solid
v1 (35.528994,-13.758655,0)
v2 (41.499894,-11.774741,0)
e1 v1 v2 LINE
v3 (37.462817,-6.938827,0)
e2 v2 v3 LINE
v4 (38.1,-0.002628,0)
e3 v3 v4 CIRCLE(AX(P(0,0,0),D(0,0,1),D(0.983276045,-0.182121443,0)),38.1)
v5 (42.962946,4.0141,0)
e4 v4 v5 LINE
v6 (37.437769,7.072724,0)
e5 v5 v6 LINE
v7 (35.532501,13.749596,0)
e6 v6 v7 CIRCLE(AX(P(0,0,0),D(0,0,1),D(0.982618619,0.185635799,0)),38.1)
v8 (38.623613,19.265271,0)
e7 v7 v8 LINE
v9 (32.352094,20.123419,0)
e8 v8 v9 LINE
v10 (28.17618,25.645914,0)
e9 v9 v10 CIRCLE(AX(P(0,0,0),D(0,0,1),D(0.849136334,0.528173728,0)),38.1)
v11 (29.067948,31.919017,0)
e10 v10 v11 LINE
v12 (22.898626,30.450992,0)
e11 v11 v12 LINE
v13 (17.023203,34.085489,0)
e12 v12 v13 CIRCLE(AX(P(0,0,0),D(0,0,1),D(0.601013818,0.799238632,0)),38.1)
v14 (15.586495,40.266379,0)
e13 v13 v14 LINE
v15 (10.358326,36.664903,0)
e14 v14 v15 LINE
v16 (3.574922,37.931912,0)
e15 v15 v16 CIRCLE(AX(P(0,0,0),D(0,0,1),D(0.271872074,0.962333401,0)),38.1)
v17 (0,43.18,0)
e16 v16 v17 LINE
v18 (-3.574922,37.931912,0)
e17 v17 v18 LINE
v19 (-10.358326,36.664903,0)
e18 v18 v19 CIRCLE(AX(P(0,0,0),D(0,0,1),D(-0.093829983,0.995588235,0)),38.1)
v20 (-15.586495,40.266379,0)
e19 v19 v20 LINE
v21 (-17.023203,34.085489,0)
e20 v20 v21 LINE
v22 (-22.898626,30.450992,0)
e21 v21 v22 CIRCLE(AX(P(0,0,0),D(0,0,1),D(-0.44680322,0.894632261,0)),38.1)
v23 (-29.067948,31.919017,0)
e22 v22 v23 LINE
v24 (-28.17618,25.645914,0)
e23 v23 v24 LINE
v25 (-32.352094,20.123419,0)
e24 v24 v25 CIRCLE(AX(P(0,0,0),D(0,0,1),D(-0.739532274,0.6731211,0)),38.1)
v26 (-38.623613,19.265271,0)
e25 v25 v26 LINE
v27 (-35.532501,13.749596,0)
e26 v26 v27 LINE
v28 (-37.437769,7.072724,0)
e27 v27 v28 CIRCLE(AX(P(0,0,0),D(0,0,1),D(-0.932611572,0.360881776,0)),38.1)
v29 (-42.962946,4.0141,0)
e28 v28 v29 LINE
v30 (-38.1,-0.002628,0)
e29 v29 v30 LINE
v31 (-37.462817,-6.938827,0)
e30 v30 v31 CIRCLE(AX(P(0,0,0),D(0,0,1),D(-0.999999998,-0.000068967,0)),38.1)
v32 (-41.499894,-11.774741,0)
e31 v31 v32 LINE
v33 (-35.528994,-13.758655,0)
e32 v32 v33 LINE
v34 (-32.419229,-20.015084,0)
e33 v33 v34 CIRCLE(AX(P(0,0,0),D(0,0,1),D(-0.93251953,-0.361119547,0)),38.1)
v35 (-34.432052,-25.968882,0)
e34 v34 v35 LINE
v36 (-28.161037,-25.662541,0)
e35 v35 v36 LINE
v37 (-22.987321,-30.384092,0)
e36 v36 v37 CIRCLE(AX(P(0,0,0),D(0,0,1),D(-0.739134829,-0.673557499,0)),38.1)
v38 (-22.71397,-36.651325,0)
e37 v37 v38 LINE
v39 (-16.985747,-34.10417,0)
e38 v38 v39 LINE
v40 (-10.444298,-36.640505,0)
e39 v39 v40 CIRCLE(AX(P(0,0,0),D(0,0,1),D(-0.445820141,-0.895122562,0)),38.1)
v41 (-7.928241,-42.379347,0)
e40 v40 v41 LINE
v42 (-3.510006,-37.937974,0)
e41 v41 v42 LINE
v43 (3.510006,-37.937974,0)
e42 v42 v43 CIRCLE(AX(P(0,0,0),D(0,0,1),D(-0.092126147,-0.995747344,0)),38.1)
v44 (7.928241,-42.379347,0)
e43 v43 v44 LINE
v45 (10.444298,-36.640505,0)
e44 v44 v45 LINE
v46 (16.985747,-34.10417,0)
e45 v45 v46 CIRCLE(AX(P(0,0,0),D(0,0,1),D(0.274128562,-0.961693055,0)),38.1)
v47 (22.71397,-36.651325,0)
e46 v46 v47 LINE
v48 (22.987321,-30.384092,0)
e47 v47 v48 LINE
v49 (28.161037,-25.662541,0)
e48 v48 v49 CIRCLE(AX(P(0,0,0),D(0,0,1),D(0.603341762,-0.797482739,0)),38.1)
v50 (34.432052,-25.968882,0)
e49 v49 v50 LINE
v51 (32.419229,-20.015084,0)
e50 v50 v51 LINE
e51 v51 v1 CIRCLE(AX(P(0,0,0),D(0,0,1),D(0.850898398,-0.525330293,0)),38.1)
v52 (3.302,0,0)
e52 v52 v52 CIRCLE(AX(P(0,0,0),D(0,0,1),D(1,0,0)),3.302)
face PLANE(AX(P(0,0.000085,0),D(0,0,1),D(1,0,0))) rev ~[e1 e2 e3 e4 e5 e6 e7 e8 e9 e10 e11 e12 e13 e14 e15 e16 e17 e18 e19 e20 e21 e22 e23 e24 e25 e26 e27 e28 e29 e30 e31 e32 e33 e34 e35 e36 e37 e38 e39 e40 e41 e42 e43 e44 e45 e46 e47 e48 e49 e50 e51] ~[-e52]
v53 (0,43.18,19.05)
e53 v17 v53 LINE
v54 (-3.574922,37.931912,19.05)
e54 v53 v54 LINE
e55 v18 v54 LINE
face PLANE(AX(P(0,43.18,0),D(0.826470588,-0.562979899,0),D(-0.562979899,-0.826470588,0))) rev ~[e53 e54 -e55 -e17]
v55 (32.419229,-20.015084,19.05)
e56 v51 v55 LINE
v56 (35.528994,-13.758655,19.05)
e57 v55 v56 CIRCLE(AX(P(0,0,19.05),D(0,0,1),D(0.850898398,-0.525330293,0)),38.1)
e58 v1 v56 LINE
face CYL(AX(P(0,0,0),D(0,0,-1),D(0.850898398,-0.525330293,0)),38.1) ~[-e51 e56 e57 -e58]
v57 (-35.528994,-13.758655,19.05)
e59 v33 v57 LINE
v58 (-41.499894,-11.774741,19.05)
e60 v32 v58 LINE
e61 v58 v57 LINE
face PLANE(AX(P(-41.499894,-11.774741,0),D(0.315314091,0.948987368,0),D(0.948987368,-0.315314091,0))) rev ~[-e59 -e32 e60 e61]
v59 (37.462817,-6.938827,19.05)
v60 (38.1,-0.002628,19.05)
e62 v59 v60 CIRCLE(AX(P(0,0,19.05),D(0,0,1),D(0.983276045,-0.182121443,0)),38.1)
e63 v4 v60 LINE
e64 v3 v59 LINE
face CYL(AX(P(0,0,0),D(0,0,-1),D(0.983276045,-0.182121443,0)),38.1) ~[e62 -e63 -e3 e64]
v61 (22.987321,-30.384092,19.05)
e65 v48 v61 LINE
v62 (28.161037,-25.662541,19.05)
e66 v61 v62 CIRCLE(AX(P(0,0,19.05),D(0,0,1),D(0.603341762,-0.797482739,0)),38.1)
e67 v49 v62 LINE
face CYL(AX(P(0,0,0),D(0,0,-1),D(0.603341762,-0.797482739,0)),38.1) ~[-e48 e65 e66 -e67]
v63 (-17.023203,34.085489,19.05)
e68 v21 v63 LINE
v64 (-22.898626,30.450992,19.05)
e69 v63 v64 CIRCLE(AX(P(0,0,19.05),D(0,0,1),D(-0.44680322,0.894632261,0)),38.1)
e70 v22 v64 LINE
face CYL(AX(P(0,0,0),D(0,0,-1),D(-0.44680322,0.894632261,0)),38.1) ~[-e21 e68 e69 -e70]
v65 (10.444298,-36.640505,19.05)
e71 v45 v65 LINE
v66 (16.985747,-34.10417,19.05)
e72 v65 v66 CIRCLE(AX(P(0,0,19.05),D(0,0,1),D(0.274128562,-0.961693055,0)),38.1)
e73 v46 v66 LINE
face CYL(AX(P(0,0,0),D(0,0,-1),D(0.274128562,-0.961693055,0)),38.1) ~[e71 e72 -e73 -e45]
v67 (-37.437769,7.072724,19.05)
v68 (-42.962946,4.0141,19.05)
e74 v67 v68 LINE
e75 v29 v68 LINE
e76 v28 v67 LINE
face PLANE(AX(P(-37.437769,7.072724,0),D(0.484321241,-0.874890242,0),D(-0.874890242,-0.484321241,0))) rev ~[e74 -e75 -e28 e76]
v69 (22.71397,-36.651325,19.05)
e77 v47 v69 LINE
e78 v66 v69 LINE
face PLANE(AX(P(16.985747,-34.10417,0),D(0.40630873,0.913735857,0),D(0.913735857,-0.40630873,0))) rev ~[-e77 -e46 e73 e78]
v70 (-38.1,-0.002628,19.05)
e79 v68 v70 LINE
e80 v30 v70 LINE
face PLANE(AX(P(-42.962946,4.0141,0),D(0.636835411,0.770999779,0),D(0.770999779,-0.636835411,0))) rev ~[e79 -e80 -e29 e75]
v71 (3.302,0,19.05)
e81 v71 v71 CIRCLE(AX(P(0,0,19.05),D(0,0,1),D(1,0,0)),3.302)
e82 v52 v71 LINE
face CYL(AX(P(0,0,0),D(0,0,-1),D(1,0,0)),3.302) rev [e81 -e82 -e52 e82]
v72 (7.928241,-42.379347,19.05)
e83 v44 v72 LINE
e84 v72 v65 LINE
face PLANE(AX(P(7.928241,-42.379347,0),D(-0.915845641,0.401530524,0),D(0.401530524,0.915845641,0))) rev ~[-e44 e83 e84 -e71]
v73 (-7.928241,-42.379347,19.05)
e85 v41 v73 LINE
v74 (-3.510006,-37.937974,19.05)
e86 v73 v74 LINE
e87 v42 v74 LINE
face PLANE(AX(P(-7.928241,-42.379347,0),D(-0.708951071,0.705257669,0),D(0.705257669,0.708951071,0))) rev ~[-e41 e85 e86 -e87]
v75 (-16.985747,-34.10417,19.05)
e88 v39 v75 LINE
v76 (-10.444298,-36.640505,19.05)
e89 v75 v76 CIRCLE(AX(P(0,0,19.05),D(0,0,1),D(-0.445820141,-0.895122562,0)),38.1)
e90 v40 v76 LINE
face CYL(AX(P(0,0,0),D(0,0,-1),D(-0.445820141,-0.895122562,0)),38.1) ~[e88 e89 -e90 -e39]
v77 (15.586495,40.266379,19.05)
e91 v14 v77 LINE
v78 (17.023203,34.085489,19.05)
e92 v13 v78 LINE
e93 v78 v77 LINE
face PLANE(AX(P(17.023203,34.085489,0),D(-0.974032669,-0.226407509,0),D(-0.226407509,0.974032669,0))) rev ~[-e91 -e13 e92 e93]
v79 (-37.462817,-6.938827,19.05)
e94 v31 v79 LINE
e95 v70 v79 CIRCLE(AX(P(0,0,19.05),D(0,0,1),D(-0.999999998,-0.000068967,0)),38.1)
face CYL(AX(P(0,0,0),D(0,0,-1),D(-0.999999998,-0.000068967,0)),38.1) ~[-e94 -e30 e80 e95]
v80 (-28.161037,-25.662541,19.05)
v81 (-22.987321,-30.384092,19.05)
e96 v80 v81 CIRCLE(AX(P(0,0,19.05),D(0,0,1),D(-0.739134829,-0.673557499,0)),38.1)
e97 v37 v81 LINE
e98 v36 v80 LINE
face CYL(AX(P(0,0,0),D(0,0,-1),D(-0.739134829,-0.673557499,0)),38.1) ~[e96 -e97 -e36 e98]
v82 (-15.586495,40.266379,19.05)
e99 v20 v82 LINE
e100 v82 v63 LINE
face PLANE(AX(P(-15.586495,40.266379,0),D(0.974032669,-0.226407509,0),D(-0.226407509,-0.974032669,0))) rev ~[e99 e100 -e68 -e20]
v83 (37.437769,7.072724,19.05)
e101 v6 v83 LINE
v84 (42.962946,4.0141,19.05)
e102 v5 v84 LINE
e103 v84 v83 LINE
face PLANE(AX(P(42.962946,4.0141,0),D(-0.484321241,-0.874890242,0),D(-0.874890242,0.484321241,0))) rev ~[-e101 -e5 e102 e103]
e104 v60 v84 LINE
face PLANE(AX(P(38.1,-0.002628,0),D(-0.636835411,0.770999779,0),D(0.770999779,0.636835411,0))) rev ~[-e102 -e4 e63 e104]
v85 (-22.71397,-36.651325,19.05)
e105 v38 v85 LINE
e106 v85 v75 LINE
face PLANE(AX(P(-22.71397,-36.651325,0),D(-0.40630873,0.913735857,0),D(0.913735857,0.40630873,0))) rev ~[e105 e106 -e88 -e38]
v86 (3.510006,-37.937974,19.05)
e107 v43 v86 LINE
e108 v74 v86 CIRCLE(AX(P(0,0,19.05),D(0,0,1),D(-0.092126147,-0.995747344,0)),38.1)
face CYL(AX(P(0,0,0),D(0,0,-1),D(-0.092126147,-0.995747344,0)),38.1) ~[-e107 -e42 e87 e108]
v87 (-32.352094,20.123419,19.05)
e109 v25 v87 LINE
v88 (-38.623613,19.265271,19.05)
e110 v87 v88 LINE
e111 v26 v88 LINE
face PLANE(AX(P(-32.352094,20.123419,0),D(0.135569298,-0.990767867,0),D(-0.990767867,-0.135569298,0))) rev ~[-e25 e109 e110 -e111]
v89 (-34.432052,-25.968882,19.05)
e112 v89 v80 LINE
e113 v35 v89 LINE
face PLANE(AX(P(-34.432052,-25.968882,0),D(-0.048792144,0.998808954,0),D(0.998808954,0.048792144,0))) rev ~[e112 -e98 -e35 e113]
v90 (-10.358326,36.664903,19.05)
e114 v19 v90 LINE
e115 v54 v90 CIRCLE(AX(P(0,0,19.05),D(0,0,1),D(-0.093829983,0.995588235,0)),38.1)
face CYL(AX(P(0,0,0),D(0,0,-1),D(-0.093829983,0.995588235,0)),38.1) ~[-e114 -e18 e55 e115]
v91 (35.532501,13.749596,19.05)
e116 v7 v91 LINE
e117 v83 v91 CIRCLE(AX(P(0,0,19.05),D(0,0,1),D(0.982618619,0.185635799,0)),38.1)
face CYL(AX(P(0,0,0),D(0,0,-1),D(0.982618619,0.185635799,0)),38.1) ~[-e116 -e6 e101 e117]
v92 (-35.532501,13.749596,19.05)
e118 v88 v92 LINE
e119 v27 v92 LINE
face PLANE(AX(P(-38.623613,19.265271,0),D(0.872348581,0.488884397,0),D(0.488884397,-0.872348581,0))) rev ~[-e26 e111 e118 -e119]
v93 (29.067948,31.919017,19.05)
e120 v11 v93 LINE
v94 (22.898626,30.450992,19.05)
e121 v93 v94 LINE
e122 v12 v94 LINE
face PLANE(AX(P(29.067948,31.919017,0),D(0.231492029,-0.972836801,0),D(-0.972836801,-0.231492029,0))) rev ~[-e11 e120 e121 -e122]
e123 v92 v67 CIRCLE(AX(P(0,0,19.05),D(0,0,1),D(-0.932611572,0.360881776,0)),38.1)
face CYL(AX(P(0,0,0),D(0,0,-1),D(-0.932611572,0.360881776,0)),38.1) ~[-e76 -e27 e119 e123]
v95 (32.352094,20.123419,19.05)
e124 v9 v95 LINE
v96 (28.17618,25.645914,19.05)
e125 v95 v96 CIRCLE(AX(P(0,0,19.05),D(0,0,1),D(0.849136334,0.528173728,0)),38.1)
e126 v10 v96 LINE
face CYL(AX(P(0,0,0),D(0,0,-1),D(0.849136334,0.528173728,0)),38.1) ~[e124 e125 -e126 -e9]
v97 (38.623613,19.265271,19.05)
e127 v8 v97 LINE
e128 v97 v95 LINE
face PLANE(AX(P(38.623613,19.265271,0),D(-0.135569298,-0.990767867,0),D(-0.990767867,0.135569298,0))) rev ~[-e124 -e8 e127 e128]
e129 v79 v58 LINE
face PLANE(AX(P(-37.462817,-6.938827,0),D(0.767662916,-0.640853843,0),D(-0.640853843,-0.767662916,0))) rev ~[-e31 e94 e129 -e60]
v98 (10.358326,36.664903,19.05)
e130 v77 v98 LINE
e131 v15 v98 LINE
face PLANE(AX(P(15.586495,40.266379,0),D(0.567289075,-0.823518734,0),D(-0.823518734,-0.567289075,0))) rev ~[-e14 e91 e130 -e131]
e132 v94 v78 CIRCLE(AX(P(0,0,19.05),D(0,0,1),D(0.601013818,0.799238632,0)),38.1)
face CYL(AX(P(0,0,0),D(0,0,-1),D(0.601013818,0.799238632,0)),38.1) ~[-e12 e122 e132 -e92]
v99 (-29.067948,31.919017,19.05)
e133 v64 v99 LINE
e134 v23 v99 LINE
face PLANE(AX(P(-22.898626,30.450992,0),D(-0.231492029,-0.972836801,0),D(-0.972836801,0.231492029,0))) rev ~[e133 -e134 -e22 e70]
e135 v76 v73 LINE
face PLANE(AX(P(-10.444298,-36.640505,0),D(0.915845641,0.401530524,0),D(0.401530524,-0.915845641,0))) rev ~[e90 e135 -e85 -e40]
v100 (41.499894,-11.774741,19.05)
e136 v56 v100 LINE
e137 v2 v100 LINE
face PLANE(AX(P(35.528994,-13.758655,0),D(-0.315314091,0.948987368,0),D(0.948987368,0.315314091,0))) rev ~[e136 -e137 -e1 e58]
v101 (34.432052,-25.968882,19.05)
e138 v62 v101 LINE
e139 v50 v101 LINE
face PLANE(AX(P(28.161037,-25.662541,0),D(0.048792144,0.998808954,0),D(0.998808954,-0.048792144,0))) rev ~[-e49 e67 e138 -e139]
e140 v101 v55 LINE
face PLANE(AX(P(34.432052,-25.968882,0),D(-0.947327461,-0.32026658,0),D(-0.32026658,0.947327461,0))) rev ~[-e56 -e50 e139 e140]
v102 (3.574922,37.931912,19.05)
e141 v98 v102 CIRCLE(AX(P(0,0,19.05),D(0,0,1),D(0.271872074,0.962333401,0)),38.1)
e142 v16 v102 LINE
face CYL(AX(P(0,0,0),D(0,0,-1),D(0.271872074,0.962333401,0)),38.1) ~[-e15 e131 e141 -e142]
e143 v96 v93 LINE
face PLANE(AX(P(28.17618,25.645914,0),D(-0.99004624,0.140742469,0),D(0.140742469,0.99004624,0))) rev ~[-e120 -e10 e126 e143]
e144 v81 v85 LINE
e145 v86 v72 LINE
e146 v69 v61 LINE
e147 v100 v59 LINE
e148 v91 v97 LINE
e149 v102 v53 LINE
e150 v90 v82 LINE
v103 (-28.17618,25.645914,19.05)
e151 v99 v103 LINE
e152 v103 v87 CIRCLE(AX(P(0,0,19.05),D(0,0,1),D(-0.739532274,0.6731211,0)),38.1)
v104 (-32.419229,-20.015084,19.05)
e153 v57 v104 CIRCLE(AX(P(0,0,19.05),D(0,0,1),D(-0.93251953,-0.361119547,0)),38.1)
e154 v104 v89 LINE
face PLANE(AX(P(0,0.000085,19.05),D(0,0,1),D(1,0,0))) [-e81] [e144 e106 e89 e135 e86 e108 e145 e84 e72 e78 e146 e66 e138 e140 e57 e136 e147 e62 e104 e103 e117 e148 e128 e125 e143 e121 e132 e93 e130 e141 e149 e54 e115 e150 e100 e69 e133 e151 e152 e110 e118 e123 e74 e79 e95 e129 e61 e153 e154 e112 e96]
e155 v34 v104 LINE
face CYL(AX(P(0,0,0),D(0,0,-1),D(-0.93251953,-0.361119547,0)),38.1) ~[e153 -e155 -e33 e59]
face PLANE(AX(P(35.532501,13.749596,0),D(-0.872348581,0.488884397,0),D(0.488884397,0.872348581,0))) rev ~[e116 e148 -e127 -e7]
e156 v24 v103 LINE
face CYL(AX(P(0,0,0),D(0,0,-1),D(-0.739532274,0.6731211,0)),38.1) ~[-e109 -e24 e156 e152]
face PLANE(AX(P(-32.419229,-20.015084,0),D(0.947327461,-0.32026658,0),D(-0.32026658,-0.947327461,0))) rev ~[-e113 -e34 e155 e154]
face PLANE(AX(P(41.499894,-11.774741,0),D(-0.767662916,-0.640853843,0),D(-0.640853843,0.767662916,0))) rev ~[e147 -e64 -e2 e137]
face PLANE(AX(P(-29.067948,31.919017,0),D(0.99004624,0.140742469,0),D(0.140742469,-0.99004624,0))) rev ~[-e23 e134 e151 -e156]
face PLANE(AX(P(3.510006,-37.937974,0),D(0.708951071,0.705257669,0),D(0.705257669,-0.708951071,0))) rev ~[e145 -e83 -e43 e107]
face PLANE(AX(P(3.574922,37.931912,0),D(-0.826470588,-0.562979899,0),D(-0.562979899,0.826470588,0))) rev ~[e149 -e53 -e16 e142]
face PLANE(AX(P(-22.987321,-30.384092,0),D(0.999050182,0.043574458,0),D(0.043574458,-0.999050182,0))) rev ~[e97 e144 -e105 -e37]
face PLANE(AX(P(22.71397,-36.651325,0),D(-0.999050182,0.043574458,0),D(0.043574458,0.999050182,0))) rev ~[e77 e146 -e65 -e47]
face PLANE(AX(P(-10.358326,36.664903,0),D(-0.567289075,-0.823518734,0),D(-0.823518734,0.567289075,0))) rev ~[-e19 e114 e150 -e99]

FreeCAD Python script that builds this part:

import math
import FreeCAD as App
import Part
import Sketcher
Q = App.Units.Quantity

doc = App.newDocument("Part")
body = doc.addObject("PartDesign::Body", "Body")

sketch1 = body.newObject("Sketcher::SketchObject", "Sketch")
sketch1.AttachmentSupport = (doc.getObject("XY_Plane"), [""])
sketch1.MapMode = "FlatFace"
sketch1.addGeometry([
    Part.ArcOfCircle(Part.Circle(App.Vector(0, 0, 0), App.Vector(0, 0, 1), 38.1), math.radians(74.224303), math.radians(84.616018)),
    Part.LineSegment(App.Vector(3.574922, 37.931912, 0), App.Vector(0, 43.18, 0)),
    Part.LineSegment(App.Vector(0, 43.18, 0), App.Vector(-3.574922, 37.931912, 0)),
    Part.ArcOfCircle(Part.Circle(App.Vector(0, 0, 0), App.Vector(0, 0, 1), 38.1), math.radians(95.383982), math.radians(105.775697)),
    Part.LineSegment(App.Vector(-10.358326, 36.664903, 0), App.Vector(-15.586495, 40.266379, 0)),
    Part.LineSegment(App.Vector(-15.586495, 40.266379, 0), App.Vector(-17.023203, 34.085489, 0)),
    Part.ArcOfCircle(Part.Circle(App.Vector(0, 0, 0), App.Vector(0, 0, 1), 38.1), math.radians(116.538766), math.radians(126.942542)),
    Part.LineSegment(App.Vector(-22.898626, 30.450992, 0), App.Vector(-29.067948, 31.919017, 0)),
    Part.LineSegment(App.Vector(-29.067948, 31.919017, 0), App.Vector(-28.17618, 25.645914, 0)),
    Part.ArcOfCircle(Part.Circle(App.Vector(0, 0, 0), App.Vector(0, 0, 1), 38.1), math.radians(137.691588), math.radians(148.117856)),
    Part.LineSegment(App.Vector(-32.352094, 20.123419, 0), App.Vector(-38.623613, 19.265271, 0)),
    Part.LineSegment(App.Vector(-38.623613, 19.265271, 0), App.Vector(-35.532501, 13.749596, 0)),
    Part.ArcOfCircle(Part.Circle(App.Vector(0, 0, 0), App.Vector(0, 0, 1), 38.1), math.radians(158.845641), math.radians(169.301797)),
    Part.LineSegment(App.Vector(-37.437769, 7.072724, 0), App.Vector(-42.962946, 4.0141, 0)),
    Part.LineSegment(App.Vector(-42.962946, 4.0141, 0), App.Vector(-38.1, -0.002628, 0)),
    Part.ArcOfCircle(Part.Circle(App.Vector(0, 0, 0), App.Vector(0, 0, 1), 38.1), math.radians(-179.996048), math.radians(-169.506648)),
    Part.LineSegment(App.Vector(-37.462817, -6.938827, 0), App.Vector(-41.499894, -11.774741, 0)),
    Part.LineSegment(App.Vector(-41.499894, -11.774741, 0), App.Vector(-35.528994, -13.758655, 0)),
    Part.ArcOfCircle(Part.Circle(App.Vector(0, 0, 0), App.Vector(0, 0, 1), 38.1), math.radians(-158.831033), math.radians(-148.309519)),
    Part.LineSegment(App.Vector(-32.419229, -20.015084, 0), App.Vector(-34.432052, -25.968882, 0)),
    Part.LineSegment(App.Vector(-34.432052, -25.968882, 0), App.Vector(-28.161037, -25.662541, 0)),
    Part.ArcOfCircle(Part.Circle(App.Vector(0, 0, 0), App.Vector(0, 0, 1), 38.1), math.radians(-137.657768), math.radians(-127.10961)),
    Part.LineSegment(App.Vector(-22.987321, -30.384092, 0), App.Vector(-22.71397, -36.651325, 0)),
    Part.LineSegment(App.Vector(-22.71397, -36.651325, 0), App.Vector(-16.985747, -34.10417, 0)),
    Part.ArcOfCircle(Part.Circle(App.Vector(0, 0, 0), App.Vector(0, 0, 1), 38.1), math.radians(-116.475823), math.radians(-105.910089)),
    Part.LineSegment(App.Vector(-10.444298, -36.640505, 0), App.Vector(-7.928241, -42.379347, 0)),
    Part.LineSegment(App.Vector(-7.928241, -42.379347, 0), App.Vector(-3.510006, -37.937974, 0)),
    Part.ArcOfCircle(Part.Circle(App.Vector(0, 0, 0), App.Vector(0, 0, 1), 38.1), math.radians(-95.285935), math.radians(-84.714065)),
    Part.LineSegment(App.Vector(3.510006, -37.937974, 0), App.Vector(7.928241, -42.379347, 0)),
    Part.LineSegment(App.Vector(7.928241, -42.379347, 0), App.Vector(10.444298, -36.640505, 0)),
    Part.ArcOfCircle(Part.Circle(App.Vector(0, 0, 0), App.Vector(0, 0, 1), 38.1), math.radians(-74.089911), math.radians(-63.524177)),
    Part.LineSegment(App.Vector(16.985747, -34.10417, 0), App.Vector(22.71397, -36.651325, 0)),
    Part.LineSegment(App.Vector(22.71397, -36.651325, 0), App.Vector(22.987321, -30.384092, 0)),
    Part.ArcOfCircle(Part.Circle(App.Vector(0, 0, 0), App.Vector(0, 0, 1), 38.1), math.radians(-52.89039), math.radians(-42.342232)),
    Part.LineSegment(App.Vector(28.161037, -25.662541, 0), App.Vector(34.432052, -25.968882, 0)),
    Part.LineSegment(App.Vector(34.432052, -25.968882, 0), App.Vector(32.419229, -20.015084, 0)),
    Part.ArcOfCircle(Part.Circle(App.Vector(0, 0, 0), App.Vector(0, 0, 1), 38.1), math.radians(-31.690481), math.radians(-21.168967)),
    Part.LineSegment(App.Vector(35.528994, -13.758655, 0), App.Vector(41.499894, -11.774741, 0)),
    Part.LineSegment(App.Vector(41.499894, -11.774741, 0), App.Vector(37.462817, -6.938827, 0)),
    Part.ArcOfCircle(Part.Circle(App.Vector(0, 0, 0), App.Vector(0, 0, 1), 38.1), math.radians(-10.493352), math.radians(-0.003952)),
    Part.LineSegment(App.Vector(38.1, -0.002628, 0), App.Vector(42.962946, 4.0141, 0)),
    Part.LineSegment(App.Vector(42.962946, 4.0141, 0), App.Vector(37.437769, 7.072724, 0)),
    Part.ArcOfCircle(Part.Circle(App.Vector(0, 0, 0), App.Vector(0, 0, 1), 38.1), math.radians(10.698203), math.radians(21.154359)),
    Part.LineSegment(App.Vector(35.532501, 13.749596, 0), App.Vector(38.623613, 19.265271, 0)),
    Part.LineSegment(App.Vector(38.623613, 19.265271, 0), App.Vector(32.352094, 20.123419, 0)),
    Part.ArcOfCircle(Part.Circle(App.Vector(0, 0, 0), App.Vector(0, 0, 1), 38.1), math.radians(31.882144), math.radians(42.308412)),
    Part.LineSegment(App.Vector(28.17618, 25.645914, 0), App.Vector(29.067948, 31.919017, 0)),
    Part.LineSegment(App.Vector(29.067948, 31.919017, 0), App.Vector(22.898626, 30.450992, 0)),
    Part.ArcOfCircle(Part.Circle(App.Vector(0, 0, 0), App.Vector(0, 0, 1), 38.1), math.radians(53.057458), math.radians(63.461234)),
    Part.LineSegment(App.Vector(17.023203, 34.085489, 0), App.Vector(15.586495, 40.266379, 0)),
    Part.LineSegment(App.Vector(15.586495, 40.266379, 0), App.Vector(10.358326, 36.664903, 0)),
    Part.Circle(App.Vector(0, 0, 0), App.Vector(0, 0, 1), 3.302),
], False)
sketch1.addConstraint([
    Sketcher.Constraint("Coincident", 0, 2, 1, 1),
    Sketcher.Constraint("Coincident", 1, 2, 2, 1),
    Sketcher.Constraint("Coincident", 2, 2, 3, 1),
    Sketcher.Constraint("Coincident", 3, 2, 4, 1),
    Sketcher.Constraint("Coincident", 4, 2, 5, 1),
    Sketcher.Constraint("Coincident", 5, 2, 6, 1),
    Sketcher.Constraint("Coincident", 6, 2, 7, 1),
    Sketcher.Constraint("Coincident", 7, 2, 8, 1),
    Sketcher.Constraint("Coincident", 8, 2, 9, 1),
    Sketcher.Constraint("Coincident", 9, 2, 10, 1),
    Sketcher.Constraint("Coincident", 10, 2, 11, 1),
    Sketcher.Constraint("Coincident", 11, 2, 12, 1),
    Sketcher.Constraint("Coincident", 12, 2, 13, 1),
    Sketcher.Constraint("Coincident", 13, 2, 14, 1),
    Sketcher.Constraint("Coincident", 14, 2, 15, 1),
    Sketcher.Constraint("Coincident", 15, 2, 16, 1),
    Sketcher.Constraint("Coincident", 16, 2, 17, 1),
    Sketcher.Constraint("Coincident", 17, 2, 18, 1),
    Sketcher.Constraint("Coincident", 18, 2, 19, 1),
    Sketcher.Constraint("Coincident", 19, 2, 20, 1),
    Sketcher.Constraint("Coincident", 20, 2, 21, 1),
    Sketcher.Constraint("Coincident", 21, 2, 22, 1),
    Sketcher.Constraint("Coincident", 22, 2, 23, 1),
    Sketcher.Constraint("Coincident", 23, 2, 24, 1),
    Sketcher.Constraint("Coincident", 24, 2, 25, 1),
    Sketcher.Constraint("Coincident", 25, 2, 26, 1),
    Sketcher.Constraint("Coincident", 26, 2, 27, 1),
    Sketcher.Constraint("Coincident", 27, 2, 28, 1),
    Sketcher.Constraint("Coincident", 28, 2, 29, 1),
    Sketcher.Constraint("Coincident", 29, 2, 30, 1),
    Sketcher.Constraint("Coincident", 30, 2, 31, 1),
    Sketcher.Constraint("Coincident", 31, 2, 32, 1),
    Sketcher.Constraint("Coincident", 32, 2, 33, 1),
    Sketcher.Constraint("Coincident", 33, 2, 34, 1),
    Sketcher.Constraint("Coincident", 34, 2, 35, 1),
    Sketcher.Constraint("Coincident", 35, 2, 36, 1),
    Sketcher.Constraint("Coincident", 36, 2, 37, 1),
    Sketcher.Constraint("Coincident", 37, 2, 38, 1),
    Sketcher.Constraint("Coincident", 38, 2, 39, 1),
    Sketcher.Constraint("Coincident", 39, 2, 40, 1),
    Sketcher.Constraint("Coincident", 40, 2, 41, 1),
    Sketcher.Constraint("Coincident", 41, 2, 42, 1),
    Sketcher.Constraint("Coincident", 42, 2, 43, 1),
    Sketcher.Constraint("Coincident", 43, 2, 44, 1),
    Sketcher.Constraint("Coincident", 44, 2, 45, 1),
    Sketcher.Constraint("Coincident", 45, 2, 46, 1),
    Sketcher.Constraint("Coincident", 46, 2, 47, 1),
    Sketcher.Constraint("Coincident", 47, 2, 48, 1),
    Sketcher.Constraint("Coincident", 48, 2, 49, 1),
    Sketcher.Constraint("Coincident", 49, 2, 50, 1),
    Sketcher.Constraint("Coincident", 50, 2, 0, 1),
    Sketcher.Constraint("Coincident", 0, 3, -1, 1),
    Sketcher.Constraint("Coincident", 3, 3, -1, 1),
    Sketcher.Constraint("Coincident", 6, 3, -1, 1),
    Sketcher.Constraint("Coincident", 9, 3, -1, 1),
    Sketcher.Constraint("Coincident", 12, 3, -1, 1),
    Sketcher.Constraint("Coincident", 15, 3, -1, 1),
    Sketcher.Constraint("Coincident", 18, 3, -1, 1),
    Sketcher.Constraint("Coincident", 21, 3, -1, 1),
    Sketcher.Constraint("Coincident", 24, 3, -1, 1),
    Sketcher.Constraint("Coincident", 27, 3, -1, 1),
    Sketcher.Constraint("Coincident", 30, 3, -1, 1),
    Sketcher.Constraint("Coincident", 33, 3, -1, 1),
    Sketcher.Constraint("Coincident", 36, 3, -1, 1),
    Sketcher.Constraint("Coincident", 39, 3, -1, 1),
    Sketcher.Constraint("Coincident", 42, 3, -1, 1),
    Sketcher.Constraint("Coincident", 45, 3, -1, 1),
    Sketcher.Constraint("Coincident", 48, 3, -1, 1),
    Sketcher.Constraint("Coincident", 51, 3, -1, 1),
    Sketcher.Constraint("Equal", 0, 3),
    Sketcher.Constraint("Equal", 3, 6),
    Sketcher.Constraint("Equal", 6, 9),
    Sketcher.Constraint("Equal", 9, 12),
    Sketcher.Constraint("Equal", 12, 15),
    Sketcher.Constraint("Equal", 15, 18),
    Sketcher.Constraint("Equal", 18, 21),
    Sketcher.Constraint("Equal", 21, 24),
    Sketcher.Constraint("Equal", 24, 27),
    Sketcher.Constraint("Equal", 27, 30),
    Sketcher.Constraint("Equal", 30, 33),
    Sketcher.Constraint("Equal", 33, 36),
    Sketcher.Constraint("Equal", 36, 39),
    Sketcher.Constraint("Equal", 39, 42),
    Sketcher.Constraint("Equal", 42, 45),
    Sketcher.Constraint("Equal", 45, 48),
    Sketcher.Constraint("Symmetric", 25, 2, 28, 2, -2),
    Sketcher.Constraint("Symmetric", 22, 2, 31, 2, -2),
    Sketcher.Constraint("Symmetric", 19, 2, 34, 2, -2),
    Sketcher.Constraint("Symmetric", 16, 2, 37, 2, -2),
    Sketcher.Constraint("Symmetric", 13, 2, 40, 2, -2),
    Sketcher.Constraint("Symmetric", 10, 2, 43, 2, -2),
    Sketcher.Constraint("Symmetric", 7, 2, 46, 2, -2),
    Sketcher.Constraint("Symmetric", 4, 2, 49, 2, -2),
    Sketcher.Constraint("PointOnObject", 1, 2, -2),
    Sketcher.Constraint("Horizontal", 0, 2, 2, 2),
    Sketcher.Constraint("Horizontal", 26, 2, 27, 2),
    Sketcher.Constraint("Horizontal", 24, 2, 29, 2),
    Sketcher.Constraint("Horizontal", 23, 2, 30, 2),
    Sketcher.Constraint("Horizontal", 21, 2, 32, 2),
    Sketcher.Constraint("Horizontal", 20, 2, 33, 2),
    Sketcher.Constraint("Horizontal", 18, 2, 35, 2),
    Sketcher.Constraint("Horizontal", 17, 2, 36, 2),
    Sketcher.Constraint("Horizontal", 15, 2, 38, 2),
    Sketcher.Constraint("Horizontal", 14, 2, 39, 2),
    Sketcher.Constraint("Horizontal", 12, 2, 41, 2),
    Sketcher.Constraint("Horizontal", 11, 2, 42, 2),
    Sketcher.Constraint("Horizontal", 9, 2, 44, 2),
    Sketcher.Constraint("Horizontal", 8, 2, 45, 2),
    Sketcher.Constraint("Horizontal", 6, 2, 47, 2),
    Sketcher.Constraint("Horizontal", 5, 2, 48, 2),
    Sketcher.Constraint("Horizontal", 3, 2, 50, 2),
    Sketcher.Constraint("Radius", 0, Q("1.5 in")),
    Sketcher.Constraint("Diameter", 51, Q("0.26 in")),
    Sketcher.Constraint("DistanceY", -1, 1, 1, 2, Q("1.7 in")),
    Sketcher.Constraint("Distance", 1, Q("0.25 in")),
    Sketcher.Constraint("DistanceY", -1, 1, 3, 2, Q("1.4435001 in")),
    Sketcher.Constraint("DistanceX", 11, 2, -1, 1, 35.532501),
    Sketcher.Constraint("DistanceY", -1, 1, 13, 2, 4.0141),
    Sketcher.Constraint("DistanceX", 24, 2, -1, 1, 10.444298),
    Sketcher.Constraint("Distance", 5, 6.34567),
    Sketcher.Constraint("Distance", 7, 6.341579),
    Sketcher.Constraint("Distance", 8, 6.336172),
    Sketcher.Constraint("Distance", 10, 6.329958),
    Sketcher.Constraint("Distance", 11, 6.322788),
    Sketcher.Constraint("Distance", 13, 6.315279),
    Sketcher.Constraint("Distance", 16, 6.299528),
    Sketcher.Constraint("Distance", 22, 6.273191),
    Sketcher.Constraint("Distance", 26, 6.26471),
    Sketcher.Constraint("DistanceY", -1, 1, 4, 2, 40.266379),
    Sketcher.Constraint("DistanceY", -1, 1, 5, 2, 34.085489),
    Sketcher.Constraint("DistanceY", -1, 1, 6, 2, 30.450992),
    Sketcher.Constraint("DistanceX", 7, 2, -1, 1, 29.067948),
    Sketcher.Constraint("DistanceY", -1, 1, 9, 2, 20.123419),
    Sketcher.Constraint("DistanceX", 12, 2, -1, 1, 37.437769),
    Sketcher.Constraint("DistanceY", 16, 2, -1, 1, 11.774741),
    Sketcher.Constraint("DistanceX", 18, 2, -1, 1, 32.419229),
    Sketcher.Constraint("DistanceX", 19, 2, -1, 1, 34.432052),
    Sketcher.Constraint("DistanceY", 19, 2, -1, 1, 25.968882),
    Sketcher.Constraint("DistanceY", 20, 2, -1, 1, 25.662541),
    Sketcher.Constraint("DistanceX", 21, 2, -1, 1, 22.987321),
    Sketcher.Constraint("DistanceX", 22, 2, -1, 1, 22.71397),
    Sketcher.Constraint("DistanceY", 23, 2, -1, 1, 34.10417),
    Sketcher.Constraint("DistanceX", 25, 2, -1, 1, 7.928241),
    Sketcher.Constraint("Distance", 14, 6.307325),
    Sketcher.Constraint("Distance", 17, 6.291865),
    Sketcher.Constraint("Distance", 25, 6.266167),
    Sketcher.Constraint("DistanceX", 15, 2, -1, 1, 37.462817),
])
pad1 = body.newObject("PartDesign::Pad", "Pad")
pad1.Profile = sketch1
pad1.Length = Q("0.75 in")

doc.recompute()
